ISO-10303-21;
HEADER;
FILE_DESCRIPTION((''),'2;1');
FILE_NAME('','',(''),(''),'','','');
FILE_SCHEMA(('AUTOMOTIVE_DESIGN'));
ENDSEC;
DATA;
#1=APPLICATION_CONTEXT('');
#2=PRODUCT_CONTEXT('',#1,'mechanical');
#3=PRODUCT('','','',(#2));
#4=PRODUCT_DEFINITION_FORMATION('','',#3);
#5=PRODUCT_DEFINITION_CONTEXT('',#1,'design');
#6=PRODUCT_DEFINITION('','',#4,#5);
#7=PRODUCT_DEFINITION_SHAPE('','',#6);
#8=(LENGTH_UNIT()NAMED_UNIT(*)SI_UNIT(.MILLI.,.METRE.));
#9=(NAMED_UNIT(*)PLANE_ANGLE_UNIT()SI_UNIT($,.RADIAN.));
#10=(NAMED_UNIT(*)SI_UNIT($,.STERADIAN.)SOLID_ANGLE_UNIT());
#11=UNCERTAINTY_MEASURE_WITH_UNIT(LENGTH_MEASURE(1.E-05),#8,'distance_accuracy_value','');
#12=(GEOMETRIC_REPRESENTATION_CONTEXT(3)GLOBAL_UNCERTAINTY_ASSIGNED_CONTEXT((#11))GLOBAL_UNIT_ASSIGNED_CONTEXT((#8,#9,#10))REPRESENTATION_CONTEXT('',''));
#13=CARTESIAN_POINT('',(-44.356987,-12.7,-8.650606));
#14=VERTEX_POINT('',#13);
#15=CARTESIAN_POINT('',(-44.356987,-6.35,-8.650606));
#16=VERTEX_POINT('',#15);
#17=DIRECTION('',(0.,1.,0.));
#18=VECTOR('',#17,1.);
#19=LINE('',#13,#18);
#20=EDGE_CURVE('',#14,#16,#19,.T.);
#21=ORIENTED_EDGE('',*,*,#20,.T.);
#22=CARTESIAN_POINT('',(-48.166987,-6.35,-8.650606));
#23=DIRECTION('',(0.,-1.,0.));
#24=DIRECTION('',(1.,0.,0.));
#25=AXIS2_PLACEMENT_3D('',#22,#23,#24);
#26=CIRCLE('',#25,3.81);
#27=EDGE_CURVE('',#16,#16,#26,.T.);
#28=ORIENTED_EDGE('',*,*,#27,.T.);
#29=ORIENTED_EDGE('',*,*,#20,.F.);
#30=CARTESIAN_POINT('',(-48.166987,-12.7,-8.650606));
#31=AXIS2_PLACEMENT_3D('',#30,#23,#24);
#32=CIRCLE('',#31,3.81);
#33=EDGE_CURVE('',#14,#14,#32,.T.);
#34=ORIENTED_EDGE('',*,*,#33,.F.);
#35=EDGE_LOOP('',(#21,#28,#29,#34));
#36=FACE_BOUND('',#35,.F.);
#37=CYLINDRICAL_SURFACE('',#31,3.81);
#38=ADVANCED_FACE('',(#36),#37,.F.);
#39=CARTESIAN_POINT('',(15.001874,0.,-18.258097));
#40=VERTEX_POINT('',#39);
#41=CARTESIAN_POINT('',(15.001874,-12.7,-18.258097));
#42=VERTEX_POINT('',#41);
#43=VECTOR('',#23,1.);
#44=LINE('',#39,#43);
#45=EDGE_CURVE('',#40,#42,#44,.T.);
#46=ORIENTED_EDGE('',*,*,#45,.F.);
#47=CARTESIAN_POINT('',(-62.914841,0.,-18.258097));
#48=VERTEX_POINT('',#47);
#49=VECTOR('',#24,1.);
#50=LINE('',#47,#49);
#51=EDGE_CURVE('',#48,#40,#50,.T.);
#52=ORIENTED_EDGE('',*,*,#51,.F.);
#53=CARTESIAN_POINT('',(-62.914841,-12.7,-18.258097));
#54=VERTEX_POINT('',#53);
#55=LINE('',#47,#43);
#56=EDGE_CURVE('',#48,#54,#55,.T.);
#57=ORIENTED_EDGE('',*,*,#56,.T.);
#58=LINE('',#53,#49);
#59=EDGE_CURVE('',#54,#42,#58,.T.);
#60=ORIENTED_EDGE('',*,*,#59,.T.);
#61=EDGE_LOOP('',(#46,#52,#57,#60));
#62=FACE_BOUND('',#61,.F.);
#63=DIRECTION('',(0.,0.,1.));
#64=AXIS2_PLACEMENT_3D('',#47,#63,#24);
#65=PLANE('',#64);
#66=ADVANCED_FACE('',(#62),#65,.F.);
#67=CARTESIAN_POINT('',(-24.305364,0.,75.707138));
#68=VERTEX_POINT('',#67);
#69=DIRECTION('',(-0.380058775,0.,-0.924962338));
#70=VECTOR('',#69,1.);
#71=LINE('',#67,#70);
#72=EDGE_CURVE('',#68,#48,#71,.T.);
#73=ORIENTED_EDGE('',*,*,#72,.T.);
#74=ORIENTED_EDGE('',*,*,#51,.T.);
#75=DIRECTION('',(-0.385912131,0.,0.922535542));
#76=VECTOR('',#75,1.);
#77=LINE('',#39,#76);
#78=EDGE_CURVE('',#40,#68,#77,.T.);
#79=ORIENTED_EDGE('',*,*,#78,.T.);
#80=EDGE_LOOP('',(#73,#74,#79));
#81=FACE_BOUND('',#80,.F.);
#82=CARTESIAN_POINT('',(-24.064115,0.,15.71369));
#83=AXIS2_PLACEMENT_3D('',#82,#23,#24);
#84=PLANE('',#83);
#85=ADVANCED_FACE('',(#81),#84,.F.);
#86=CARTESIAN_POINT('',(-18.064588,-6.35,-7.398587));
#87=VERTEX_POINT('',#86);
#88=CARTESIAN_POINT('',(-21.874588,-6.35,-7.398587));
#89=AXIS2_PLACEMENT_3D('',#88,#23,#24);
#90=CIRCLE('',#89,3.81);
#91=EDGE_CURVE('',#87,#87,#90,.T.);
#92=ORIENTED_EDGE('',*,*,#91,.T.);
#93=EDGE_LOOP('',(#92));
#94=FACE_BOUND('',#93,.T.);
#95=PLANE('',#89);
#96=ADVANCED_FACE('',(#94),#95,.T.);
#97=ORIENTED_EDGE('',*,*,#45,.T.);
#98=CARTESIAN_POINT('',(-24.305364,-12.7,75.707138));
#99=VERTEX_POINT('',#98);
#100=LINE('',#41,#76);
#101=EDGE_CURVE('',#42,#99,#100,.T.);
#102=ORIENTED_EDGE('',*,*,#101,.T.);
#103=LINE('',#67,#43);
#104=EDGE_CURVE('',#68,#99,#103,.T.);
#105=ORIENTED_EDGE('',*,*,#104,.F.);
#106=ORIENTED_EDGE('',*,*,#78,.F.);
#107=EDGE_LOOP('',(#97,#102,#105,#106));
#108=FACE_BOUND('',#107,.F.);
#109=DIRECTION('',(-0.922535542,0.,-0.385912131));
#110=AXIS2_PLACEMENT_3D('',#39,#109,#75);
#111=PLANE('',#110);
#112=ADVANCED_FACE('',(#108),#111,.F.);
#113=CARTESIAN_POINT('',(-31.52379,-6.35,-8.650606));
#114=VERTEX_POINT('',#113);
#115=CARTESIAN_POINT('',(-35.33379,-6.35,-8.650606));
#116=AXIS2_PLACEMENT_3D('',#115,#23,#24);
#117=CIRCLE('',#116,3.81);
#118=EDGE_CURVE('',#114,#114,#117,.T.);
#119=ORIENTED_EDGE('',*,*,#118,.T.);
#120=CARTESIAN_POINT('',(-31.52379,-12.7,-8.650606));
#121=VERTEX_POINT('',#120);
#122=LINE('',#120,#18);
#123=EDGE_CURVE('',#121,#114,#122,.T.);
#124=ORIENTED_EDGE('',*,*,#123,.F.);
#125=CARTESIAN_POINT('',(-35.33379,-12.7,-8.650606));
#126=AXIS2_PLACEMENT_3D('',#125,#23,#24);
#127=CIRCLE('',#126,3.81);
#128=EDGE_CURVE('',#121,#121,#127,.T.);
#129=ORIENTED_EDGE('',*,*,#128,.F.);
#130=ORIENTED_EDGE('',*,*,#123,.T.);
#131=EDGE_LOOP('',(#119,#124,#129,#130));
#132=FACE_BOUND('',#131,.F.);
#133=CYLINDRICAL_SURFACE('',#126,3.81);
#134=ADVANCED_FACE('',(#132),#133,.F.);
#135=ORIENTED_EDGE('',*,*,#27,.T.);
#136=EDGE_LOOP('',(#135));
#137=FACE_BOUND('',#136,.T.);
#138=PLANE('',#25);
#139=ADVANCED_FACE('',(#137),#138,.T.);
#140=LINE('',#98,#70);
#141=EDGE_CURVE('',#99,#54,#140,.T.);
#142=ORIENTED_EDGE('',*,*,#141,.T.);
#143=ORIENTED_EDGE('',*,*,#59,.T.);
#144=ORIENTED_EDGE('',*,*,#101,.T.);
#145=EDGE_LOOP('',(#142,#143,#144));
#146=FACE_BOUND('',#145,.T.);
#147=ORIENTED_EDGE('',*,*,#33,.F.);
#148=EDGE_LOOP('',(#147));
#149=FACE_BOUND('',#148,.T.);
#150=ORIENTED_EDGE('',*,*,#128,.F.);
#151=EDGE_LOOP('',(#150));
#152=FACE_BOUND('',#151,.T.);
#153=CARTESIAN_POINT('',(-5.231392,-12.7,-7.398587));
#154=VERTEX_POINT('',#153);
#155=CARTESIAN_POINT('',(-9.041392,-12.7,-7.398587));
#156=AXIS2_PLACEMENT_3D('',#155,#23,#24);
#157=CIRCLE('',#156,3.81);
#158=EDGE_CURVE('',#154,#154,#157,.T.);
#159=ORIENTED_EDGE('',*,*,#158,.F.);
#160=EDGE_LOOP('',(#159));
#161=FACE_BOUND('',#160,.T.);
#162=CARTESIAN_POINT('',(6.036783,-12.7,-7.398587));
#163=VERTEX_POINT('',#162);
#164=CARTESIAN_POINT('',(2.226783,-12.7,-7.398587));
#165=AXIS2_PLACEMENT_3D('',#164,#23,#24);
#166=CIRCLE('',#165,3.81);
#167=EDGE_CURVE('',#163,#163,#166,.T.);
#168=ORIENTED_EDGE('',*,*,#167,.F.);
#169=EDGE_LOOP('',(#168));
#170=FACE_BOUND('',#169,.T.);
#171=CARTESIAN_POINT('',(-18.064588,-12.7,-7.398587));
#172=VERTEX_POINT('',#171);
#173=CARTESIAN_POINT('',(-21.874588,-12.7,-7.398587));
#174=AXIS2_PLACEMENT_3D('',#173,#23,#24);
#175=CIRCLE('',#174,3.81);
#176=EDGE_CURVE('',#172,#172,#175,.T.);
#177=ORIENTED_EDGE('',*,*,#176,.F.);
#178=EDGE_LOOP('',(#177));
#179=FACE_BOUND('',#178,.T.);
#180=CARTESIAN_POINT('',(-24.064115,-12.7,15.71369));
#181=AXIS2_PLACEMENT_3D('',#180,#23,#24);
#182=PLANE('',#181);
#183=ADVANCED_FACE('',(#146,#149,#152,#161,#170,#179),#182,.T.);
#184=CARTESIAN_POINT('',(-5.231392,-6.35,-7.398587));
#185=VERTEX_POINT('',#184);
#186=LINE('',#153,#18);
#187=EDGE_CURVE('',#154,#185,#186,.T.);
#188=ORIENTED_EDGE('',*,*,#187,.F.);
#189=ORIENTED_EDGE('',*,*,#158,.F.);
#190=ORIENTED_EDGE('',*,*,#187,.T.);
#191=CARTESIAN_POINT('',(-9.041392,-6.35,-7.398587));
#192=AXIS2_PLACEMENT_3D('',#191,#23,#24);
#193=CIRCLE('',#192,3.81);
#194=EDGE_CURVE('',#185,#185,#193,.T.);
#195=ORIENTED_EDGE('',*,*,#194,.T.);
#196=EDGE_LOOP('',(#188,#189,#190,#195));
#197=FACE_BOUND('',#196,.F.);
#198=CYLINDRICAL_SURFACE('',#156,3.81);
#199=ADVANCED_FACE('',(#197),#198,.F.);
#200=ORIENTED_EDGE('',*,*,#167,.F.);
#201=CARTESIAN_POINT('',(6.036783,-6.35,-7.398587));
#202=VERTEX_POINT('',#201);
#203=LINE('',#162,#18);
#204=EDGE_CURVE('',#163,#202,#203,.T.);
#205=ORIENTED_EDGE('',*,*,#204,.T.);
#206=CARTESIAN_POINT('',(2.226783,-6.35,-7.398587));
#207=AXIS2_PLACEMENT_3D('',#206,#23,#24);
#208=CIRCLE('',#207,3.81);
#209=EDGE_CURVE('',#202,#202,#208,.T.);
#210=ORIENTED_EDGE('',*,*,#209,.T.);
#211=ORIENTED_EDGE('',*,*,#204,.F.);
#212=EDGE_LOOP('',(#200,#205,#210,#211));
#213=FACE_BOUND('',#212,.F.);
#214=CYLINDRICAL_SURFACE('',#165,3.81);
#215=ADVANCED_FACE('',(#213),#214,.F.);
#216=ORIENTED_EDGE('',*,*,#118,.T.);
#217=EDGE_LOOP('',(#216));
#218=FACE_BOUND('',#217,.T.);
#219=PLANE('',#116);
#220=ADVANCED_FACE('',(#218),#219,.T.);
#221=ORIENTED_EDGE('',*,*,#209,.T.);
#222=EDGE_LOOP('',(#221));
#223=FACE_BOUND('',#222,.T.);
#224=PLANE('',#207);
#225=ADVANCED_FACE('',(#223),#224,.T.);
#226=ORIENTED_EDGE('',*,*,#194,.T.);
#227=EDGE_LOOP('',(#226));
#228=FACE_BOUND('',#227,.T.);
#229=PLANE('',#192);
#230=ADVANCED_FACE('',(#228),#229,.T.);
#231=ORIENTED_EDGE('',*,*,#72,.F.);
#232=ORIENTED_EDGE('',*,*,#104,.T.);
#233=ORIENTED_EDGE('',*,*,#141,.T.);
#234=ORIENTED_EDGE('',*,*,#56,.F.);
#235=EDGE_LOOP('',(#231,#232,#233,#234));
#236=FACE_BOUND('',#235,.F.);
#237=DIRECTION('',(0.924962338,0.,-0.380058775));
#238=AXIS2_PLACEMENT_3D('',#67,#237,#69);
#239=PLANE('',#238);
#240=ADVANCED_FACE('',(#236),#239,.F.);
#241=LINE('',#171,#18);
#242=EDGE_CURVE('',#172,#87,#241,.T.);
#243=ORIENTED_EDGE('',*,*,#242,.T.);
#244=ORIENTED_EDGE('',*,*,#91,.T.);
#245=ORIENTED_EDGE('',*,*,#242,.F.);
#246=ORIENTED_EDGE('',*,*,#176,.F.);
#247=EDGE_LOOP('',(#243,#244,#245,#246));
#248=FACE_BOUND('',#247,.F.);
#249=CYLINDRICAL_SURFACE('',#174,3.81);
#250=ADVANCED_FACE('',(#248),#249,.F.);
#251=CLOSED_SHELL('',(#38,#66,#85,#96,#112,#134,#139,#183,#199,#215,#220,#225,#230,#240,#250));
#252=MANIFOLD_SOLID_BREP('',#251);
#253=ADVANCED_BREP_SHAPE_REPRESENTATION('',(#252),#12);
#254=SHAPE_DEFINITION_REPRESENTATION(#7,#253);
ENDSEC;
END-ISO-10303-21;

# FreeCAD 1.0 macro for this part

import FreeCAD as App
import Part
import Sketcher

V = App.Vector
Q = App.Units.Quantity

doc = App.newDocument("Part")
body = doc.addObject("PartDesign::Body", "Body")

sketch1 = body.newObject("Sketcher::SketchObject", "Sketch")
sketch1.AttachmentSupport = (doc.getObject("XZ_Plane"), [""])
sketch1.MapMode = "FlatFace"
sketch1.addGeometry([
    Part.LineSegment(V(-24, 76, 0), V(-63, -18, 0)),
    Part.LineSegment(V(-63, -18, 0), V(15, -18, 0)),
    Part.LineSegment(V(15, -18, 0), V(-24, 76, 0)),
], False)
sketch1.addConstraint([
    Sketcher.Constraint("Coincident", 0, 2, 1, 1),
    Sketcher.Constraint("Coincident", 1, 2, 2, 1),
    Sketcher.Constraint("Coincident", 2, 2, 0, 1),
    Sketcher.Constraint("Horizontal", 1),
    Sketcher.Constraint("Distance", 2, Q("101.855409 mm")),
    Sketcher.Constraint("DistanceX", 1, 1, 1, 2, Q("77.916715 mm")),
    Sketcher.Constraint("DistanceX", 0, 2, -1, 1, Q("62.914841 mm")),
    Sketcher.Constraint("DistanceY", -1, 1, 2, 2, Q("75.707138 mm")),
    Sketcher.Constraint("Distance", 0, Q("101.588174 mm")),
])
pad1 = body.newObject("PartDesign::Pad", "Pad")
pad1.Profile = sketch1
pad1.Length = Q("0.5 in")

sketch2 = body.newObject("Sketcher::SketchObject", "Sketch001")
sketch2.AttachmentSupport = (doc.getObject("XZ_Plane"), [""])
sketch2.MapMode = "FlatFace"
sketch2.AttachmentOffset = App.Placement(V(0, 0, 0.5 * 25.4), App.Rotation())
sketch2.addGeometry([
    Part.Circle(V(-48.2, -8.7, 0), V(0, 0, 1), 3.8),
    Part.Circle(V(-35.3, -8.7, 0), V(0, 0, 1), 3.8),
    Part.Circle(V(-21.9, -7.4, 0), V(0, 0, 1), 3.8),
    Part.Circle(V(-9, -7.4, 0), V(0, 0, 1), 3.8),
    Part.Circle(V(2.2, -7.4, 0), V(0, 0, 1), 3.8),
], False)
sketch2.addConstraint([
    Sketcher.Constraint("Equal", 0, 1),
    Sketcher.Constraint("Equal", 1, 2),
    Sketcher.Constraint("Equal", 2, 3),
    Sketcher.Constraint("Equal", 3, 4),
    Sketcher.Constraint("Horizontal", 0, 3, 1, 3),
    Sketcher.Constraint("Horizontal", 2, 3, 3, 3),
    Sketcher.Constraint("Horizontal", 3, 3, 4, 3),
    Sketcher.Constraint("Diameter", 0, Q("0.3 in")),
    Sketcher.Constraint("DistanceX", 0, 3, 2, 3, Q("26.292399 mm")),
    Sketcher.Constraint("DistanceX", 1, 3, -1, 1, Q("35.33379 mm")),
    Sketcher.Constraint("DistanceY", 1, 3, 2, 3, Q("1.252019 mm")),
    Sketcher.Constraint("DistanceX", 2, 3, 4, 3, Q("24.101371 mm")),
    Sketcher.Constraint("DistanceX", 0, 3, -1, 1, Q("48.166987 mm")),
    Sketcher.Constraint("DistanceY", 0, 3, -1, 1, Q("8.650606 mm")),
    Sketcher.Constraint("DistanceX", 3, 3, -1, 1, Q("9.041392 mm")),
])
pocket1 = body.newObject("PartDesign::Pocket", "Pocket")
pocket1.Profile = sketch2
pocket1.Length = Q("0.25 in")

doc.recompute()
